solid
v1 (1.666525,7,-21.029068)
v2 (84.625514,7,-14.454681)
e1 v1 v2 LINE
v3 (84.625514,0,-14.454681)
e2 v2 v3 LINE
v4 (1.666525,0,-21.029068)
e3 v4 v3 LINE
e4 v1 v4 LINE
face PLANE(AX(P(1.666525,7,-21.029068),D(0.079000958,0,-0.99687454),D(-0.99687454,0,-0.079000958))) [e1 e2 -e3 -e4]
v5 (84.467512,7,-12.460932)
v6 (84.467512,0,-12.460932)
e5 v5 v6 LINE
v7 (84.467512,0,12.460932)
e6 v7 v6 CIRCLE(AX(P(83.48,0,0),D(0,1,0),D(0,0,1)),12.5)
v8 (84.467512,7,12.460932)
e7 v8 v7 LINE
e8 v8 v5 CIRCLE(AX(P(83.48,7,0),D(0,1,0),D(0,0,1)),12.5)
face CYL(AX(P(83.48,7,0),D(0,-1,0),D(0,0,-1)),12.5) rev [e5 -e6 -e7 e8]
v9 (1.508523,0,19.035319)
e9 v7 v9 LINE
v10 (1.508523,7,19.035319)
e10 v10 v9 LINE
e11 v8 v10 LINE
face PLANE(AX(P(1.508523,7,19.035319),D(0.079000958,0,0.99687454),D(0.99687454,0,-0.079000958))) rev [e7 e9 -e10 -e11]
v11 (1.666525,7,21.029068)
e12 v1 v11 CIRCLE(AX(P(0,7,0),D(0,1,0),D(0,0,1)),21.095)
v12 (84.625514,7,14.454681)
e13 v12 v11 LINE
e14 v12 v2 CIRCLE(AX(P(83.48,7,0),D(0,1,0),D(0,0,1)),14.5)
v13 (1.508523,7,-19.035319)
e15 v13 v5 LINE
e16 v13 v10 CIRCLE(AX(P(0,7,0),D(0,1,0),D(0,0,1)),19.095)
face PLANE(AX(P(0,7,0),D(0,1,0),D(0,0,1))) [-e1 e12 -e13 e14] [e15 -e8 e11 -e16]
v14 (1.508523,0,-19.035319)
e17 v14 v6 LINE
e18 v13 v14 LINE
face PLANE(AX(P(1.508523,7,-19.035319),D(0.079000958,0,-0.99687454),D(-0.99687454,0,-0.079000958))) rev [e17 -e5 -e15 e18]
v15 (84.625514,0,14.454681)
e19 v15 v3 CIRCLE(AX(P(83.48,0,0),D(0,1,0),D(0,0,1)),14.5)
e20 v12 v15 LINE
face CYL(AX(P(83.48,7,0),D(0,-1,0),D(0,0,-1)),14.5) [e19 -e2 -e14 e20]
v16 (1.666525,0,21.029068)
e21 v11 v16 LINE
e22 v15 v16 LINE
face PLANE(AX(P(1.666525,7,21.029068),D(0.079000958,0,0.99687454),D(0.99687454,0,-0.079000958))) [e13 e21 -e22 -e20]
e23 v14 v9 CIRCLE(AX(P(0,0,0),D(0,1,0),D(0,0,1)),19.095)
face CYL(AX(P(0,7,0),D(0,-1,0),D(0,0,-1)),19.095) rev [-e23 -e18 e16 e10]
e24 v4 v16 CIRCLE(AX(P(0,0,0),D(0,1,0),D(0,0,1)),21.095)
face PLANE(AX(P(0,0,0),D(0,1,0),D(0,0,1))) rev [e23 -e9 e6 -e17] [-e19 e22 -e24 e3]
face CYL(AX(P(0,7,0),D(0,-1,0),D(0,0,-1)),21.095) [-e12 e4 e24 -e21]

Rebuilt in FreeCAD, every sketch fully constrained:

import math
import FreeCAD as App
import Part
import Sketcher
from FreeCAD import Vector

doc = App.newDocument("Part")
body = doc.addObject("PartDesign::Body", "Body")

# Sketch on XZ plane
sketch1 = body.newObject("Sketcher::SketchObject", "Sketch")
sketch1.AttachmentSupport = (doc.getObject("XZ_Plane"), [""])
sketch1.MapMode = "FlatFace"
sketch1.addGeometry([
    Part.LineSegment(Vector(85, -14, 0), Vector(2, -21, 0)),  # 0
    Part.ArcOfCircle(Part.Circle(Vector(0, 0, 0), Vector(0, 0, 1), 21), math.radians(85), math.radians(275)),  # 1
    Part.LineSegment(Vector(2, 21, 0), Vector(85, 14, 0)),  # 2
    Part.ArcOfCircle(Part.Circle(Vector(83, 0, 0), Vector(0, 0, 1), 14), math.radians(-85), math.radians(85)),  # 3
    Part.LineSegment(Vector(84, 12, 0), Vector(2, 19, 0)),  # 4
    Part.ArcOfCircle(Part.Circle(Vector(0, 0, 0), Vector(0, 0, 1), 19), math.radians(85), math.radians(275)),  # 5
    Part.LineSegment(Vector(2, -19, 0), Vector(84, -12, 0)),  # 6
    Part.ArcOfCircle(Part.Circle(Vector(83, 0, 0), Vector(0, 0, 1), 13), math.radians(-85), math.radians(85)),  # 7
], False)
sketch1.addConstraint([
    Sketcher.Constraint("Tangent", 0, 2, 1, 2),
    Sketcher.Constraint("Tangent", 1, 1, 2, 1),
    Sketcher.Constraint("Tangent", 2, 2, 3, 2),
    Sketcher.Constraint("Tangent", 3, 1, 0, 1),
    Sketcher.Constraint("Tangent", 4, 2, 5, 1),
    Sketcher.Constraint("Tangent", 5, 2, 6, 1),
    Sketcher.Constraint("Tangent", 6, 2, 7, 1),
    Sketcher.Constraint("Tangent", 7, 2, 4, 1),
    Sketcher.Constraint("Coincident", 1, 3, -1, 1),
    Sketcher.Constraint("Coincident", 5, 3, -1, 1),
    Sketcher.Constraint("Coincident", 7, 3, 3, 3),
    Sketcher.Constraint("PointOnObject", 3, 3, -1),
    Sketcher.Constraint("Parallel", 2, 4),
    Sketcher.Constraint("Radius", 3, 14.5),
    Sketcher.Constraint("Radius", 7, 12.5),
    Sketcher.Constraint("Radius", 1, 21.095),
    Sketcher.Constraint("DistanceX", -1, 1, 3, 3, 83.48),
])
pad1 = body.newObject("PartDesign::Pad", "Pad")
pad1.Profile = sketch1
pad1.Length = 7
pad1.Reversed = True

doc.recompute()
